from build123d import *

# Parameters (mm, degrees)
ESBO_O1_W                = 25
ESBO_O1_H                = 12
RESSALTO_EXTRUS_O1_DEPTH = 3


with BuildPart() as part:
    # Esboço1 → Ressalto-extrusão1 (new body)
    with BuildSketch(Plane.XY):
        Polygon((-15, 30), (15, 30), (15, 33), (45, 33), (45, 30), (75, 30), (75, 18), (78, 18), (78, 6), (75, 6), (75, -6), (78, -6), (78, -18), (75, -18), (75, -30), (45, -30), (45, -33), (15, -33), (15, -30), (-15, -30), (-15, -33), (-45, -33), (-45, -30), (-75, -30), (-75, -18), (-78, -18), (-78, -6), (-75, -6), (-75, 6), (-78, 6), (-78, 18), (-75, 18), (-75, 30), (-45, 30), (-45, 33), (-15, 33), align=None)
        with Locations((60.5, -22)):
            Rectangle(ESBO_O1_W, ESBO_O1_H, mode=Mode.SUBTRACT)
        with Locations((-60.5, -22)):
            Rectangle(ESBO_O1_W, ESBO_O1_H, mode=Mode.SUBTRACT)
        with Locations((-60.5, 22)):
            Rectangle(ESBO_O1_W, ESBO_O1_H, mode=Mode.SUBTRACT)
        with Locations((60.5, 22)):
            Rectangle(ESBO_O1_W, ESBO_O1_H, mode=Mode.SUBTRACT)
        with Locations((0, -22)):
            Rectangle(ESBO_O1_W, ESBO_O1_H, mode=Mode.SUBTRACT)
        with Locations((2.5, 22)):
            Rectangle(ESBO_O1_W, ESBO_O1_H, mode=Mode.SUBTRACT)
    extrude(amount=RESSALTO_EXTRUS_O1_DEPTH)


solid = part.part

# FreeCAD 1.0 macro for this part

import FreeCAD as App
import Part
import Sketcher
from FreeCAD import Vector
Q = App.Units.Quantity


def add_polygon(sketch, points):
    """Adds a closed chain of lines whose ends are joined by coincident constraints."""
    first, n = sketch.GeometryCount, len(points)
    for a, b in zip(points, points[1:] + points[:1]):
        sketch.addGeometry(Part.LineSegment(App.Vector(*a, 0), App.Vector(*b, 0)), False)
    for i in range(n):
        sketch.addConstraint(Sketcher.Constraint("Coincident", first + i, 2, first + (i + 1) % n, 1))

doc = App.newDocument("Part")
body = doc.addObject("PartDesign::Body", "Body")

sketch1 = doc.addObject("Sketcher::SketchObject", "Sketch")
body.addObject(sketch1)
sketch1.AttachmentSupport = (doc.XY_Plane, [""])
sketch1.MapMode = "FlatFace"
add_polygon(sketch1, [(15, 30), (-15, 30), (-15, 33), (-45, 33), (-45, 30), (-75, 30), (-75, 18), (-78, 18), (-78, 6), (-75, 6), (-75, -6), (-78, -6), (-78, -18), (-75, -18), (-75, -30), (-45, -30), (-45, -33), (-15, -33), (-15, -30), (15, -30), (15, -33), (45, -33), (45, -30), (75, -30), (75, -18), (78, -18), (78, -6), (75, -6), (75, 6), (78, 6), (78, 18), (75, 18), (75, 30), (45, 30), (45, 33), (15, 33)])
add_polygon(sketch1, [(48, -28), (48, -16), (73, -16), (73, -28)])
add_polygon(sketch1, [(-12.5, -28), (-12.5, -16), (12.5, -16), (12.5, -28)])
add_polygon(sketch1, [(-73, -28), (-73, -16), (-48, -16), (-48, -28)])
add_polygon(sketch1, [(48, 16), (48, 28), (73, 28), (73, 16)])
add_polygon(sketch1, [(-10, 16), (-10, 28), (15, 28), (15, 16)])
add_polygon(sketch1, [(-73, 16), (-73, 28), (-48, 28), (-48, 16)])
sketch1.addConstraint([
    Sketcher.Constraint("Horizontal", 0),
    Sketcher.Constraint("Vertical", 1),
    Sketcher.Constraint("Horizontal", 2),
    Sketcher.Constraint("Vertical", 3),
    Sketcher.Constraint("Horizontal", 4),
    Sketcher.Constraint("Vertical", 5),
    Sketcher.Constraint("Horizontal", 6),
    Sketcher.Constraint("Vertical", 7),
    Sketcher.Constraint("Horizontal", 8),
    Sketcher.Constraint("Vertical", 9),
    Sketcher.Constraint("Horizontal", 10),
    Sketcher.Constraint("Vertical", 11),
    Sketcher.Constraint("Horizontal", 12),
    Sketcher.Constraint("Vertical", 13),
    Sketcher.Constraint("Horizontal", 14),
    Sketcher.Constraint("Vertical", 15),
    Sketcher.Constraint("Horizontal", 16),
    Sketcher.Constraint("Vertical", 17),
    Sketcher.Constraint("Horizontal", 18),
    Sketcher.Constraint("Vertical", 19),
    Sketcher.Constraint("Horizontal", 20),
    Sketcher.Constraint("Vertical", 21),
    Sketcher.Constraint("Horizontal", 22),
    Sketcher.Constraint("Vertical", 23),
    Sketcher.Constraint("Horizontal", 24),
    Sketcher.Constraint("Vertical", 25),
    Sketcher.Constraint("Horizontal", 26),
    Sketcher.Constraint("Vertical", 27),
    Sketcher.Constraint("Horizontal", 28),
    Sketcher.Constraint("Vertical", 29),
    Sketcher.Constraint("Horizontal", 30),
    Sketcher.Constraint("Vertical", 31),
    Sketcher.Constraint("Horizontal", 32),
    Sketcher.Constraint("Vertical", 33),
    Sketcher.Constraint("Horizontal", 34),
    Sketcher.Constraint("Vertical", 35),
    Sketcher.Constraint("Vertical", 36),
    Sketcher.Constraint("Horizontal", 37),
    Sketcher.Constraint("Vertical", 38),
    Sketcher.Constraint("Horizontal", 39),
    Sketcher.Constraint("Vertical", 40),
    Sketcher.Constraint("Horizontal", 41),
    Sketcher.Constraint("Vertical", 42),
    Sketcher.Constraint("Horizontal", 43),
    Sketcher.Constraint("Vertical", 44),
    Sketcher.Constraint("Horizontal", 45),
    Sketcher.Constraint("Vertical", 46),
    Sketcher.Constraint("Horizontal", 47),
    Sketcher.Constraint("Vertical", 48),
    Sketcher.Constraint("Horizontal", 49),
    Sketcher.Constraint("Vertical", 50),
    Sketcher.Constraint("Horizontal", 51),
    Sketcher.Constraint("Vertical", 52),
    Sketcher.Constraint("Horizontal", 53),
    Sketcher.Constraint("Vertical", 54),
    Sketcher.Constraint("Horizontal", 55),
    Sketcher.Constraint("Vertical", 56),
    Sketcher.Constraint("Horizontal", 57),
    Sketcher.Constraint("Vertical", 58),
    Sketcher.Constraint("Horizontal", 59),
    Sketcher.Constraint("Symmetric", 0, 2, 18, 2, -1, 1),
    Sketcher.Constraint("Symmetric", 2, 2, 20, 2, -1, 1),
    Sketcher.Constraint("Symmetric", 4, 2, 22, 2, -1, 1),
    Sketcher.Constraint("Symmetric", 6, 2, 24, 2, -1, 1),
    Sketcher.Constraint("Symmetric", 8, 2, 26, 2, -1, 1),
    Sketcher.Constraint("Symmetric", 10, 2, 28, 2, -1, 1),
    Sketcher.Constraint("Symmetric", 12, 2, 30, 2, -1, 1),
    Sketcher.Constraint("Symmetric", 14, 2, 32, 2, -1, 1),
    Sketcher.Constraint("Symmetric", 16, 2, 34, 2, -1, 1),
    Sketcher.Constraint("Symmetric", 46, 2, 48, 2, -1, 1),
    Sketcher.Constraint("Symmetric", 44, 2, 50, 2, -1, 1),
    Sketcher.Constraint("Symmetric", 38, 2, 56, 2, -1, 1),
    Sketcher.Constraint("Symmetric", 36, 2, 58, 2, -1, 1),
    Sketcher.Constraint("Symmetric", 16, 2, 19, 2, -2),
    Sketcher.Constraint("Symmetric", 14, 2, 21, 2, -2),
    Sketcher.Constraint("Symmetric", 12, 2, 23, 2, -2),
    Sketcher.Constraint("Symmetric", 10, 2, 25, 2, -2),
    Sketcher.Constraint("Symmetric", 37, 2, 44, 2, -2),
    Sketcher.Constraint("Symmetric", 39, 2, 46, 2, -2),
    Sketcher.Constraint("Horizontal", 0, 2, 3, 2),
    Sketcher.Constraint("Horizontal", 37, 2, 40, 2),
    Sketcher.Constraint("Horizontal", 39, 2, 42, 2),
    Sketcher.Constraint("Horizontal", 49, 2, 52, 2),
    Sketcher.Constraint("Horizontal", 51, 2, 54, 2),
    Sketcher.Constraint("Vertical", 5, 2, 8, 2),
    Sketcher.Constraint("Vertical", 35, 2, 53, 2),
    Sketcher.Constraint("Equal", 0, 2),
    Sketcher.Constraint("Equal", 2, 4),
    Sketcher.Constraint("Equal", 39, 41),
    Sketcher.Constraint("Equal", 51, 53),
    Sketcher.Constraint("Equal", 30, 1),
    Sketcher.Constraint("Equal", 5, 7),
    Sketcher.Constraint("Equal", 7, 9),
    Sketcher.Constraint("Equal", 31, 36),
    Sketcher.Constraint("DistanceX", 0, 2, 0, 1, Q("30 mm")),
    Sketcher.Constraint("DistanceX", 6, 2, 6, 1, Q("3 mm")),
    Sketcher.Constraint("DistanceX", 37, 1, 37, 2, Q("25 mm")),
    Sketcher.Constraint("DistanceY", 5, 2, 5, 1, Q("12 mm")),
    Sketcher.Constraint("DistanceX", -1, 1, 36, 2, Q("48 mm")),
    Sketcher.Constraint("DistanceY", 36, 2, -1, 1, Q("16 mm")),
    Sketcher.Constraint("DistanceX", 40, 2, -1, 1, Q("12.5 mm")),
])
pad1 = doc.addObject("PartDesign::Pad", "Pad")
body.addObject(pad1)
pad1.Profile = sketch1
pad1.Length = 3

doc.recompute()
